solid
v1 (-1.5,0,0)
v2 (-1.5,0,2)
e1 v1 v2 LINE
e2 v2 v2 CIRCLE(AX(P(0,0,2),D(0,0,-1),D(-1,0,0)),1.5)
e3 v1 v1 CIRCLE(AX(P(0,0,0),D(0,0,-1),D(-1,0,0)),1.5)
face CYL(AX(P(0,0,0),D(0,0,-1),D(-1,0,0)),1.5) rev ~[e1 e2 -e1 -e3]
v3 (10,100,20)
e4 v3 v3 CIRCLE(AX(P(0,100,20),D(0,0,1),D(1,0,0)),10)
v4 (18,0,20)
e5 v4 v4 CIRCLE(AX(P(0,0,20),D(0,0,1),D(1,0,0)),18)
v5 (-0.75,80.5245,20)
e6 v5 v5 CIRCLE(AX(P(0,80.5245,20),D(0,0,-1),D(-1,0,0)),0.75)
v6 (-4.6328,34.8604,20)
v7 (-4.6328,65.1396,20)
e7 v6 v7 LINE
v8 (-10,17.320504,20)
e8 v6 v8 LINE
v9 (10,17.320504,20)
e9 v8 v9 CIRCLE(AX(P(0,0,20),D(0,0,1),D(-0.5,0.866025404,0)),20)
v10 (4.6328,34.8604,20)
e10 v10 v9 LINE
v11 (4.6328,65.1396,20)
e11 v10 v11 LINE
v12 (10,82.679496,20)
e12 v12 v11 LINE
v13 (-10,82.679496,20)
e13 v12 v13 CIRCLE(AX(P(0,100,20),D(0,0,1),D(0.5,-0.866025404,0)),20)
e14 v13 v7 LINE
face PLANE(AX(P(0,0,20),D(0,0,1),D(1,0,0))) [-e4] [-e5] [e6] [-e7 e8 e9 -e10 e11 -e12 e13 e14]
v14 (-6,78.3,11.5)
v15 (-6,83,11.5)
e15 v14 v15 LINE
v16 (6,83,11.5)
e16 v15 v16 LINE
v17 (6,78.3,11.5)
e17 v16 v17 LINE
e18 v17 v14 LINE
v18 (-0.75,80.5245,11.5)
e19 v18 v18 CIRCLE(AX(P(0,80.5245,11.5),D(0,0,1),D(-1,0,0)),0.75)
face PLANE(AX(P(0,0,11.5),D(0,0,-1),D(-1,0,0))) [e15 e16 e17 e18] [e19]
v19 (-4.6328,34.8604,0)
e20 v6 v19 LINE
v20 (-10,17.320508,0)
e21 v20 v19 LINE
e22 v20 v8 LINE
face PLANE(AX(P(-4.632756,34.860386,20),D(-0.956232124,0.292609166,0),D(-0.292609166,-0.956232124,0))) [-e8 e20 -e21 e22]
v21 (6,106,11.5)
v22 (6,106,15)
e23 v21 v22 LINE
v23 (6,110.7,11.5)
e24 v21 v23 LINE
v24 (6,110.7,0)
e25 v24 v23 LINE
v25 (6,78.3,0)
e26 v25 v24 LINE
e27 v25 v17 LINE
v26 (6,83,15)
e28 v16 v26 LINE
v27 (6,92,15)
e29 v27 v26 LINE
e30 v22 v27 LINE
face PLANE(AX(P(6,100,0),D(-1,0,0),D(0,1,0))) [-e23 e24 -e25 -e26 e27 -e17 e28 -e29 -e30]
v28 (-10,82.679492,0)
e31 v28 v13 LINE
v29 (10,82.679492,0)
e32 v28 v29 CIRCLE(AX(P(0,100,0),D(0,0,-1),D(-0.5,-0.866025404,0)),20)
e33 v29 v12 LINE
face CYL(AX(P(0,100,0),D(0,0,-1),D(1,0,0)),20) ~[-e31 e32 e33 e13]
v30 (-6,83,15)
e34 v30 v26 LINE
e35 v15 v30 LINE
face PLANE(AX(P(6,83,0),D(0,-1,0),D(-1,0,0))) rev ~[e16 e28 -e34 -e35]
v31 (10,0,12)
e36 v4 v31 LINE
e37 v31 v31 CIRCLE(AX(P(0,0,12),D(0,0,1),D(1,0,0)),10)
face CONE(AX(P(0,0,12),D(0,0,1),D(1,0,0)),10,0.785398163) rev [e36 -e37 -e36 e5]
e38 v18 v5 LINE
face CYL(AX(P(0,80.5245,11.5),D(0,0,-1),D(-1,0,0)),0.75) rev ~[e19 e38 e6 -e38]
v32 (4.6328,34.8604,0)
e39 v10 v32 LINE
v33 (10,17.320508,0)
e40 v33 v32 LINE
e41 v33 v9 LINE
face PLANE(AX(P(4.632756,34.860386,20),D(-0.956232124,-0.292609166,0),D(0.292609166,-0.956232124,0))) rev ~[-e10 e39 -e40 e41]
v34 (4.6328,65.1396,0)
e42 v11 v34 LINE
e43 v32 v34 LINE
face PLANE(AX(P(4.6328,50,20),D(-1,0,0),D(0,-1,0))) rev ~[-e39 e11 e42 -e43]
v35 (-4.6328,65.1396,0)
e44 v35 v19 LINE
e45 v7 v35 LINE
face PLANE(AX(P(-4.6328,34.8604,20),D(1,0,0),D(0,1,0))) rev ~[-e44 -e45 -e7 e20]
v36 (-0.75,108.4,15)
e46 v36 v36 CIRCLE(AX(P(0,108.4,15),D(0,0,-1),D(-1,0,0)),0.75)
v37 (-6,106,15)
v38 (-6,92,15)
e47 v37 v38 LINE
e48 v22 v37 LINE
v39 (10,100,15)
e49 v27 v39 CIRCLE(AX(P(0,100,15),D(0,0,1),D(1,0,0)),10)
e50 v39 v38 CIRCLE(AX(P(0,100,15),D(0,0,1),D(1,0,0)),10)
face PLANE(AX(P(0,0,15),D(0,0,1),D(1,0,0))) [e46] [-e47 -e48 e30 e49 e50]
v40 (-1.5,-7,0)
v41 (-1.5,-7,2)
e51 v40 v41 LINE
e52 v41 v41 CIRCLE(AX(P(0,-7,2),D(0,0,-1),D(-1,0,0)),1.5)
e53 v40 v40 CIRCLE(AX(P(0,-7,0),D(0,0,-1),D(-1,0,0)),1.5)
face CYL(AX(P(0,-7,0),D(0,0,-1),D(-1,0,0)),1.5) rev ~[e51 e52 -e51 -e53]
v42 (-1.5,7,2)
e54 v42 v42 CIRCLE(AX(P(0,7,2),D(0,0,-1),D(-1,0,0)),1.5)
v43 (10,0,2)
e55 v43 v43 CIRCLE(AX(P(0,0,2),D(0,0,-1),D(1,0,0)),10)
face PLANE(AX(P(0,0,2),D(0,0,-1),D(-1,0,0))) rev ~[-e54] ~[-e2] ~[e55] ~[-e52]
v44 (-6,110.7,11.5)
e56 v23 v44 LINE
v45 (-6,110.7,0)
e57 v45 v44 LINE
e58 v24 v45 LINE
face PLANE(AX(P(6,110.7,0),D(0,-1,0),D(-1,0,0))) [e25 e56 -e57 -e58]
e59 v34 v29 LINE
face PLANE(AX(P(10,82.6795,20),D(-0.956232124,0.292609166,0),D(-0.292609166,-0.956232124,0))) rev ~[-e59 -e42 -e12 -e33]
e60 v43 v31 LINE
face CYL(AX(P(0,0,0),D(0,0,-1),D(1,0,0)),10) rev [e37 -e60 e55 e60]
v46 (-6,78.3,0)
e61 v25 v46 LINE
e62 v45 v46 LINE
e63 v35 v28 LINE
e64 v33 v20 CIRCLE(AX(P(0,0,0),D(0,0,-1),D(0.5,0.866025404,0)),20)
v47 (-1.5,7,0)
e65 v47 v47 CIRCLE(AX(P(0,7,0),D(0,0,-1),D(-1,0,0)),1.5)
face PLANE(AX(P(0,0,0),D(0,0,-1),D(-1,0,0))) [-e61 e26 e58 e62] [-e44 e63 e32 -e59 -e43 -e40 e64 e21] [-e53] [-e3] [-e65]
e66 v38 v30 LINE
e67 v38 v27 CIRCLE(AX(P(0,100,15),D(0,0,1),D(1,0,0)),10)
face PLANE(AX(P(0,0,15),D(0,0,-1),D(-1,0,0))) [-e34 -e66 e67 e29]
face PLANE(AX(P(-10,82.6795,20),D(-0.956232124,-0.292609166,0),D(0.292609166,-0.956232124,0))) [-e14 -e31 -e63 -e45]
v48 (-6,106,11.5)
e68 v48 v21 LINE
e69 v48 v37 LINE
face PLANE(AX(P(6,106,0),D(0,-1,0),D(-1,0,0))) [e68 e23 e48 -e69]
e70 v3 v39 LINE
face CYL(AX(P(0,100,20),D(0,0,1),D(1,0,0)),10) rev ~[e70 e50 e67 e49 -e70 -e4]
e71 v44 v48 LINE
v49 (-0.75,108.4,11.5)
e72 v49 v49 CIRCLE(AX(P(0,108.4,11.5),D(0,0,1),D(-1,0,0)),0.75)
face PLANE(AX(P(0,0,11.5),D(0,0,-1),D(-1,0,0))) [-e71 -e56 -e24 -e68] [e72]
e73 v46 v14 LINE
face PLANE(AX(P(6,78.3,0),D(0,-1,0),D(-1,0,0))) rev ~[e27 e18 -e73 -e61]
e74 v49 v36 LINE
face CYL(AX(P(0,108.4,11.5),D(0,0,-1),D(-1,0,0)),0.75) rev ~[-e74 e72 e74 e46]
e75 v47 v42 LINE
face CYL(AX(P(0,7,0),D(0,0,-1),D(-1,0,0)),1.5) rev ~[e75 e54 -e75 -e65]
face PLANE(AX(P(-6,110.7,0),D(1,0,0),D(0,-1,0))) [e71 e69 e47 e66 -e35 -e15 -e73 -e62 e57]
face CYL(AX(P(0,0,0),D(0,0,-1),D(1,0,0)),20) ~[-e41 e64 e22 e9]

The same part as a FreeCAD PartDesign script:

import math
import FreeCAD as App
import Part
import Sketcher
Q = App.Units.Quantity


def edges_at(feature, points):
    """Names of the edges that pass closest to the given points."""
    edges = feature.Shape.Edges
    near = lambda p: min(range(len(edges)), key=lambda i: edges[i].distToShape(Part.Vertex(*p))[0])
    return sorted({f"Edge{near(p) + 1}" for p in points})

doc = App.newDocument("Part")
body = doc.addObject("PartDesign::Body", "Body")

# Sketch on XY plane
sketch1 = body.newObject("Sketcher::SketchObject", "Sketch")
sketch1.AttachmentSupport = (doc.getObject("XY_Plane"), [""])
sketch1.MapMode = "FlatFace"
sketch1.addGeometry([
    Part.LineSegment(App.Vector(10, 17, 0), App.Vector(10, 83, 0)),  # 0
    Part.ArcOfCircle(Part.Circle(App.Vector(0, 100, 0), App.Vector(0, 0, 1), 20), math.radians(-60), math.radians(240)),  # 1
    Part.LineSegment(App.Vector(-10, 83, 0), App.Vector(-10, 17, 0)),  # 2
    Part.ArcOfCircle(Part.Circle(App.Vector(0, 0, 0), App.Vector(0, 0, 1), 20), math.radians(120), math.radians(420)),  # 3
    Part.Circle(App.Vector(0, 0, 0), App.Vector(0, 0, 1), 10),  # 4
], False)
sketch1.addConstraint([
    Sketcher.Constraint("Coincident", 0, 2, 1, 1),
    Sketcher.Constraint("Coincident", 1, 2, 2, 1),
    Sketcher.Constraint("Coincident", 2, 2, 3, 1),
    Sketcher.Constraint("Coincident", 3, 2, 0, 1),
    Sketcher.Constraint("Vertical", 0),
    Sketcher.Constraint("Vertical", 2),
    Sketcher.Constraint("Coincident", 3, 3, -1, 1),
    Sketcher.Constraint("Coincident", 4, 3, -1, 1),
    Sketcher.Constraint("Equal", 1, 3),
    Sketcher.Constraint("Symmetric", 0, 2, 1, 2, -2),
    Sketcher.Constraint("Diameter", 4, Q("20 mm")),
    Sketcher.Constraint("Radius", 1, Q("20 mm")),
    Sketcher.Constraint("DistanceY", -1, 1, 1, 3, Q("100 mm")),
    Sketcher.Constraint("DistanceX", -1, 1, 0, 2, Q("10 mm")),
])
pad1 = body.newObject("PartDesign::Pad", "Pad")
pad1.Profile = sketch1
pad1.Length = 20

# Sketch on XY plane
sketch2 = body.newObject("Sketcher::SketchObject", "Sketch001")
sketch2.AttachmentSupport = (doc.getObject("XY_Plane"), [""])
sketch2.MapMode = "FlatFace"
sketch2.AttachmentOffset = App.Placement(App.Vector(0, 0, 20), App.Rotation())
sketch2.addGeometry(Part.Circle(App.Vector(0, 100, 0), App.Vector(0, 0, 1), 10), False)
sketch2.addConstraint([
    Sketcher.Constraint("PointOnObject", 0, 3, -2),
    Sketcher.Constraint("Diameter", 0, Q("20 mm")),
    Sketcher.Constraint("DistanceY", -1, 1, 0, 3, Q("100 mm")),
])
pocket1 = body.newObject("PartDesign::Pocket", "Pocket")
pocket1.Profile = sketch2
pocket1.Length = 5

# Sketch on XY plane
sketch3 = body.newObject("Sketcher::SketchObject", "Sketch002")
sketch3.AttachmentSupport = (doc.getObject("XY_Plane"), [""])
sketch3.MapMode = "FlatFace"
sketch3.addGeometry([
    Part.LineSegment(App.Vector(6, 106, 0), App.Vector(6, 83, 0)),
    Part.LineSegment(App.Vector(6, 83, 0), App.Vector(-6, 83, 0)),
    Part.LineSegment(App.Vector(-6, 83, 0), App.Vector(-6, 106, 0)),
    Part.LineSegment(App.Vector(-6, 106, 0), App.Vector(6, 106, 0)),
], False)
sketch3.addConstraint([
    Sketcher.Constraint("Coincident", 0, 2, 1, 1),
    Sketcher.Constraint("Coincident", 1, 2, 2, 1),
    Sketcher.Constraint("Coincident", 2, 2, 3, 1),
    Sketcher.Constraint("Coincident", 3, 2, 0, 1),
    Sketcher.Constraint("Vertical", 0),
    Sketcher.Constraint("Horizontal", 1),
    Sketcher.Constraint("Vertical", 2),
    Sketcher.Constraint("Horizontal", 3),
    Sketcher.Constraint("DistanceX", -1, 1, 0, 2, Q("6 mm")),
    Sketcher.Constraint("DistanceX", 1, 2, -1, 1, Q("6 mm")),
    Sketcher.Constraint("DistanceY", 0, 2, 0, 1, Q("23 mm")),
    Sketcher.Constraint("DistanceY", -1, 1, 0, 2, Q("83 mm")),
])
pocket2 = body.newObject("PartDesign::Pocket", "Pocket001")
pocket2.Profile = sketch3
pocket2.Length = 15
pocket2.Reversed = True

# Sketch on XY plane
sketch4 = body.newObject("Sketcher::SketchObject", "Sketch003")
sketch4.AttachmentSupport = (doc.getObject("XY_Plane"), [""])
sketch4.MapMode = "FlatFace"
sketch4.addGeometry([
    Part.LineSegment(App.Vector(-6, 78.3, 0), App.Vector(-6, 83, 0)),  # 0
    Part.LineSegment(App.Vector(-6, 83, 0), App.Vector(6, 83, 0)),  # 1
    Part.LineSegment(App.Vector(6, 83, 0), App.Vector(6, 78.3, 0)),  # 2
    Part.LineSegment(App.Vector(6, 78.3, 0), App.Vector(-6, 78.3, 0)),  # 3
    Part.LineSegment(App.Vector(6, 106, 0), App.Vector(-6, 106, 0)),  # 4
    Part.LineSegment(App.Vector(-6, 106, 0), App.Vector(-6, 110.7, 0)),  # 5
    Part.LineSegment(App.Vector(-6, 110.7, 0), App.Vector(6, 110.7, 0)),  # 6
    Part.LineSegment(App.Vector(6, 110.7, 0), App.Vector(6, 106, 0)),  # 7
], False)
sketch4.addConstraint([
    Sketcher.Constraint("Coincident", 0, 2, 1, 1),
    Sketcher.Constraint("Coincident", 1, 2, 2, 1),
    Sketcher.Constraint("Coincident", 2, 2, 3, 1),
    Sketcher.Constraint("Coincident", 3, 2, 0, 1),
    Sketcher.Constraint("Coincident", 4, 2, 5, 1),
    Sketcher.Constraint("Coincident", 5, 2, 6, 1),
    Sketcher.Constraint("Coincident", 6, 2, 7, 1),
    Sketcher.Constraint("Coincident", 7, 2, 4, 1),
    Sketcher.Constraint("Vertical", 0),
    Sketcher.Constraint("Horizontal", 1),
    Sketcher.Constraint("Vertical", 2),
    Sketcher.Constraint("Horizontal", 3),
    Sketcher.Constraint("Horizontal", 4),
    Sketcher.Constraint("Vertical", 5),
    Sketcher.Constraint("Horizontal", 6),
    Sketcher.Constraint("Vertical", 7),
    Sketcher.Constraint("Vertical", 3, 2, 4, 2),
    Sketcher.Constraint("Vertical", 2, 2, 6, 2),
    Sketcher.Constraint("Equal", 2, 5),
    Sketcher.Constraint("DistanceX", 1, 1, 1, 2, Q("12 mm")),
    Sketcher.Constraint("DistanceY", 0, 1, 0, 2, Q("4.7 mm")),
    Sketcher.Constraint("DistanceX", 0, 2, -1, 1, Q("6 mm")),
    Sketcher.Constraint("DistanceY", -1, 1, 0, 2, Q("83 mm")),
    Sketcher.Constraint("DistanceY", -1, 1, 4, 2, Q("106 mm")),
])
pocket3 = body.newObject("PartDesign::Pocket", "Pocket002")
pocket3.Profile = sketch4
pocket3.Length = 11.5
pocket3.Reversed = True

# Sketch on XY plane
sketch5 = body.newObject("Sketcher::SketchObject", "Sketch004")
sketch5.AttachmentSupport = (doc.getObject("XY_Plane"), [""])
sketch5.MapMode = "FlatFace"
sketch5.AttachmentOffset = App.Placement(App.Vector(0, 0, 11.5), App.Rotation())
sketch5.addGeometry([
    Part.Circle(App.Vector(0, 108.4, 0), App.Vector(0, 0, 1), 0.8),
    Part.Circle(App.Vector(0, 80.5, 0), App.Vector(0, 0, 1), 0.8),
], False)
sketch5.addConstraint([
    Sketcher.Constraint("Equal", 0, 1),
    Sketcher.Constraint("PointOnObject", 0, 3, -2),
    Sketcher.Constraint("PointOnObject", 1, 3, -2),
    Sketcher.Constraint("Diameter", 0, Q("1.5 mm")),
    Sketcher.Constraint("DistanceY", -1, 1, 0, 3, Q("108.4 mm")),
    Sketcher.Constraint("DistanceY", -1, 1, 1, 3, Q("80.5245 mm")),
])
pocket4 = body.newObject("PartDesign::Pocket", "Pocket003")
pocket4.Profile = sketch5
pocket4.Length = 48.975
pocket4.Reversed = True

# Sketch on XY plane
sketch6 = body.newObject("Sketcher::SketchObject", "Sketch005")
sketch6.AttachmentSupport = (doc.getObject("XY_Plane"), [""])
sketch6.MapMode = "FlatFace"
sketch6.addGeometry(Part.Circle(App.Vector(0, 0, 0), App.Vector(0, 0, 1), 10), False)
sketch6.addConstraint([
    Sketcher.Constraint("Coincident", 0, 3, -1, 1),
    Sketcher.Constraint("Diameter", 0, Q("20 mm")),
])
pad2 = body.newObject("PartDesign::Pad", "Pad001")
pad2.Profile = sketch6
pad2.Length = 2

# Sketch on XY plane
sketch7 = body.newObject("Sketcher::SketchObject", "Sketch006")
sketch7.AttachmentSupport = (doc.getObject("XY_Plane"), [""])
sketch7.MapMode = "FlatFace"
sketch7.addGeometry([
    Part.Circle(App.Vector(0, 0, 0), App.Vector(0, 0, 1), 1.5),
    Part.Circle(App.Vector(0, 7, 0), App.Vector(0, 0, 1), 1.5),
    Part.Circle(App.Vector(0, -7, 0), App.Vector(0, 0, 1), 1.5),
], False)
sketch7.addConstraint([
    Sketcher.Constraint("Coincident", 0, 3, -1, 1),
    Sketcher.Constraint("Equal", 0, 1),
    Sketcher.Constraint("Equal", 1, 2),
    Sketcher.Constraint("Symmetric", 1, 3, 2, 3, -1, 1),
    Sketcher.Constraint("PointOnObject", 1, 3, -2),
    Sketcher.Constraint("Diameter", 0, Q("3 mm")),
    Sketcher.Constraint("DistanceY", -1, 1, 1, 3, Q("7 mm")),
])
pocket5 = body.newObject("PartDesign::Pocket", "Pocket004")
pocket5.Profile = sketch7
pocket5.Length = 10.7
pocket5.Reversed = True
doc.recompute()

chamfer = body.newObject("PartDesign::Chamfer", "Chamfer")
chamfer.Base = (pocket5, edges_at(pocket5, [(-10, 0, 20)]))
chamfer.Size = 8

# Sketch on XY plane
sketch8 = body.newObject("Sketcher::SketchObject", "Sketch007")
sketch8.AttachmentSupport = (doc.getObject("XY_Plane"), [""])
sketch8.MapMode = "FlatFace"
sketch8.AttachmentOffset = App.Placement(App.Vector(0, 0, 20), App.Rotation())
sketch8.addGeometry([
    Part.LineSegment(App.Vector(-5, 65, 0), App.Vector(-10, 83, 0)),  # 0
    Part.LineSegment(App.Vector(-10, 83, 0), App.Vector(-10, 17, 0)),  # 1
    Part.LineSegment(App.Vector(-10, 17, 0), App.Vector(-5, 35, 0)),  # 2
    Part.LineSegment(App.Vector(-5, 35, 0), App.Vector(-5, 65, 0)),  # 3
    Part.LineSegment(App.Vector(5, 35, 0), App.Vector(10, 17, 0)),  # 4
    Part.LineSegment(App.Vector(10, 17, 0), App.Vector(10, 83, 0)),  # 5
    Part.LineSegment(App.Vector(10, 83, 0), App.Vector(5, 65, 0)),  # 6
    Part.LineSegment(App.Vector(5, 65, 0), App.Vector(5, 35, 0)),  # 7
], False)
sketch8.addConstraint([
    Sketcher.Constraint("Coincident", 0, 2, 1, 1),
    Sketcher.Constraint("Coincident", 1, 2, 2, 1),
    Sketcher.Constraint("Coincident", 2, 2, 3, 1),
    Sketcher.Constraint("Coincident", 3, 2, 0, 1),
    Sketcher.Constraint("Coincident", 4, 2, 5, 1),
    Sketcher.Constraint("Coincident", 5, 2, 6, 1),
    Sketcher.Constraint("Coincident", 6, 2, 7, 1),
    Sketcher.Constraint("Coincident", 7, 2, 4, 1),
    Sketcher.Constraint("Vertical", 1),
    Sketcher.Constraint("Vertical", 3),
    Sketcher.Constraint("Vertical", 5),
    Sketcher.Constraint("Vertical", 7),
    Sketcher.Constraint("Symmetric", 1, 2, 4, 2, -2),
    Sketcher.Constraint("Symmetric", 3, 2, 6, 2, -2),
    Sketcher.Constraint("Parallel", 0, 4),
    Sketcher.Constraint("Parallel", 2, 6),
    Sketcher.Constraint("Horizontal", 0, 2, 5, 2),
    Sketcher.Constraint("DistanceX", 0, 2, -1, 1, Q("10 mm")),
    Sketcher.Constraint("DistanceY", 1, 2, 1, 1, Q("65.359 mm")),
    Sketcher.Constraint("DistanceY", 1, 2, 2, 2, Q("17.54 mm")),
    Sketcher.Constraint("Distance", 0, Q("18.3427 mm")),
    Sketcher.Constraint("DistanceY", -1, 1, 0, 2, Q("82.6795 mm")),
])
pocket6 = body.newObject("PartDesign::Pocket", "Pocket005")
pocket6.Profile = sketch8
pocket6.Length = 38.5125

doc.recompute()
